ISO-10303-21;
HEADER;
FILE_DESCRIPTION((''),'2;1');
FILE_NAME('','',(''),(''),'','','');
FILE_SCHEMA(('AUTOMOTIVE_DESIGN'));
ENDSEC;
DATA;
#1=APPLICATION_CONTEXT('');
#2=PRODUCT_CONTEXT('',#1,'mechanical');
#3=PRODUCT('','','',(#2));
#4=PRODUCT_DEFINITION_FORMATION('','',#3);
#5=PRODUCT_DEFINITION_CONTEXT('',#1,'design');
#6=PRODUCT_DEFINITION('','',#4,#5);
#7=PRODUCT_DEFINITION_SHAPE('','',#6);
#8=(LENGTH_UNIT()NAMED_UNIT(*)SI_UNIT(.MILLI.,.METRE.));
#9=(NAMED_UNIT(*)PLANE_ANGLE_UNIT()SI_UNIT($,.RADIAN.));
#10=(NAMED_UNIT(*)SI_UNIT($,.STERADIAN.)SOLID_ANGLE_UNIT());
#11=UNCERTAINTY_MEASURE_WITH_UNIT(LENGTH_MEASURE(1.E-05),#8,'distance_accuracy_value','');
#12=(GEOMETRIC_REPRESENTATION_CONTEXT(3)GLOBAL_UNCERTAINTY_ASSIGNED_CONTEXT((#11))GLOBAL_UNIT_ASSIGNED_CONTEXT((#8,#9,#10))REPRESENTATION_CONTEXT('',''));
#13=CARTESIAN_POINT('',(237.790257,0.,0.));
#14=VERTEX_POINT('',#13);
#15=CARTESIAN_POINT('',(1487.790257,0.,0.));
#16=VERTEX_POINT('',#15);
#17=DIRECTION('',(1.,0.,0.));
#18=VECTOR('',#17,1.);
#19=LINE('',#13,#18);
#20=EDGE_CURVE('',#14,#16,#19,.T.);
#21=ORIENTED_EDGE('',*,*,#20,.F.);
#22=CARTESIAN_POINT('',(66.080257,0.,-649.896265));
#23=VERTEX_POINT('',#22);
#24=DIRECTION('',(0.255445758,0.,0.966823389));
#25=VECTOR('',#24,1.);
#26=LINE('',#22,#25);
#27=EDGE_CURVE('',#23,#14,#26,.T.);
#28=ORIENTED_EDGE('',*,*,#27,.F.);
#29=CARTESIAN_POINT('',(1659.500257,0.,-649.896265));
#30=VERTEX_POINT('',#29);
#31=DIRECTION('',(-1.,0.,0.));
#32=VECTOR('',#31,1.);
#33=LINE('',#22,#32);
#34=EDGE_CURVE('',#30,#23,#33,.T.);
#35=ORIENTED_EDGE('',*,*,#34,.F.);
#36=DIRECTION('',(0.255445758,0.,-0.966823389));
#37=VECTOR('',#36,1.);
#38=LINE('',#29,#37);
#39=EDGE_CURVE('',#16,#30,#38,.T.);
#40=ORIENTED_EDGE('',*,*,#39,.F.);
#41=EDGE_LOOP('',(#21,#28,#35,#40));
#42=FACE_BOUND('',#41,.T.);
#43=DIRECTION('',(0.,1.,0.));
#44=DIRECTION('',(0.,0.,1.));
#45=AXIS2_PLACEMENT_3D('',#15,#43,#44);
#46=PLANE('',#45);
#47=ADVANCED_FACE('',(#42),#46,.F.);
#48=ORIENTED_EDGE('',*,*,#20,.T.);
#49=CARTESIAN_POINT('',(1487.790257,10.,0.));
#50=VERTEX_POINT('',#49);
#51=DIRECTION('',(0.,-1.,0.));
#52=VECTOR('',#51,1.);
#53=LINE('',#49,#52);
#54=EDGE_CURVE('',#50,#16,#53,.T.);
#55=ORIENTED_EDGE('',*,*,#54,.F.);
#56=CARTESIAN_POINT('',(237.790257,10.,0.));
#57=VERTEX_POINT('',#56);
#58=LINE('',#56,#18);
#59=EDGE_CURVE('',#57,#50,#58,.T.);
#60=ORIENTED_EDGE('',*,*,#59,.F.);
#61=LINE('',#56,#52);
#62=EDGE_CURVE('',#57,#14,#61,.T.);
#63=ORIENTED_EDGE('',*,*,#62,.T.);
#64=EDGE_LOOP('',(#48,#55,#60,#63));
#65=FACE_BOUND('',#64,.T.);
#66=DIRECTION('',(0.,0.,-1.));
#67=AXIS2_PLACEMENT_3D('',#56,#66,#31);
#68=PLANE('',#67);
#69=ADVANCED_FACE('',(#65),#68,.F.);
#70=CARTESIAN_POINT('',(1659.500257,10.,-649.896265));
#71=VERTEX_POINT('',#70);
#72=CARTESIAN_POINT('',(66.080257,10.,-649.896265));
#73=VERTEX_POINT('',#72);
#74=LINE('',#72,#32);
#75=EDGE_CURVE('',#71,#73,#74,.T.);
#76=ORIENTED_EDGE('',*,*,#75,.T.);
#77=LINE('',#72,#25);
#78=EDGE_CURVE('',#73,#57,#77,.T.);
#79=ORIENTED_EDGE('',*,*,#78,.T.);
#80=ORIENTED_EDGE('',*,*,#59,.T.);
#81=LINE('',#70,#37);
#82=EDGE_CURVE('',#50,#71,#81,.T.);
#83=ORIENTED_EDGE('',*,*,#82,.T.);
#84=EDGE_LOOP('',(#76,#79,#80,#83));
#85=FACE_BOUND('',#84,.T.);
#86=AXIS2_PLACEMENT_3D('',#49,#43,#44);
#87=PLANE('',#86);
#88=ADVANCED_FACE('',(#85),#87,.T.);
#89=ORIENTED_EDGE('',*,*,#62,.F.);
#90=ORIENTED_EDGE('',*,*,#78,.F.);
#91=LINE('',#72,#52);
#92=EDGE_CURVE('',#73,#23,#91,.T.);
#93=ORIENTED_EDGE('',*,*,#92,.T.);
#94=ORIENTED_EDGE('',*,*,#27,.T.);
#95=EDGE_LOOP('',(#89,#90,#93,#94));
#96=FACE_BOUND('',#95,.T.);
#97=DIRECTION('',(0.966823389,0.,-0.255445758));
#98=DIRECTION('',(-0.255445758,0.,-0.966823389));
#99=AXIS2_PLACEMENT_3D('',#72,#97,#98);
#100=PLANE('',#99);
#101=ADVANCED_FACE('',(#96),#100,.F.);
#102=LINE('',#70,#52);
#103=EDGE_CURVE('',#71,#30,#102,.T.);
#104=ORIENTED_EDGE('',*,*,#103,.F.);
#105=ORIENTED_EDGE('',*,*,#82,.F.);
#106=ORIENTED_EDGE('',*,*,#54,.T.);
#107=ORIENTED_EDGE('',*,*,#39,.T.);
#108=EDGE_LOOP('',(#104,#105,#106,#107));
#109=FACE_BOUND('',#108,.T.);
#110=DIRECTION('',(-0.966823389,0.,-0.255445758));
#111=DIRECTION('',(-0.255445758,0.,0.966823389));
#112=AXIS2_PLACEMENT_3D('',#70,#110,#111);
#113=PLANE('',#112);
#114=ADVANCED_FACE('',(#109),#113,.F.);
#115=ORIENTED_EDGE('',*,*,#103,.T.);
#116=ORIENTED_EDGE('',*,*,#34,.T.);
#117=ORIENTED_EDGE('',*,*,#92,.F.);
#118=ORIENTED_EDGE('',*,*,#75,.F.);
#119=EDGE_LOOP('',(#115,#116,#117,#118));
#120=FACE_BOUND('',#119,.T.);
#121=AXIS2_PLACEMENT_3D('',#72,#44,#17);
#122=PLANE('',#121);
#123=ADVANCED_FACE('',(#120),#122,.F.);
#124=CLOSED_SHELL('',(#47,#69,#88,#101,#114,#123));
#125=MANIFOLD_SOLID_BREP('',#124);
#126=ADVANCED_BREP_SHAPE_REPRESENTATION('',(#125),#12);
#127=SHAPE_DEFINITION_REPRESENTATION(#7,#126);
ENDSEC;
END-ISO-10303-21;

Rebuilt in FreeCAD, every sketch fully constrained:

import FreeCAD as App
import Part
import Sketcher

V = App.Vector
Q = App.Units.Quantity


def add_polygon(sketch, points):
    """Adds a closed chain of lines whose ends are joined by coincident constraints."""
    first, n = sketch.GeometryCount, len(points)
    for a, b in zip(points, points[1:] + points[:1]):
        sketch.addGeometry(Part.LineSegment(App.Vector(*a, 0), App.Vector(*b, 0)), False)
    for i in range(n):
        sketch.addConstraint(Sketcher.Constraint("Coincident", first + i, 2, first + (i + 1) % n, 1))

doc = App.newDocument("Part")
params = doc.addObject("Spreadsheet::Sheet", "Params")
for row, (alias, value) in enumerate([
    ("sketch1_width", "1250 mm"),
    ("sketch1_width2", "1593.42 mm"),
    ("pad1_length", "10 mm"),
], start=1):
    params.set(f"A{row}", alias)
    params.set(f"B{row}", "=" + value)
    params.setAlias(f"B{row}", alias)

body = doc.addObject("PartDesign::Body", "Body")

# Sketch on XZ plane
sketch1 = body.newObject("Sketcher::SketchObject", "Sketch")
sketch1.AttachmentSupport = (doc.getObject("XZ_Plane"), [""])
sketch1.MapMode = "FlatFace"
add_polygon(sketch1, [(66.080257, -649.896265), (237.790257, 0), (1487.790257, 0), (1659.500257, -649.896265)])  # lines 0-3
sketch1.addConstraint([
    Sketcher.Constraint("Horizontal", 1),
    Sketcher.Constraint("Horizontal", 3),
    Sketcher.Constraint("PointOnObject", 0, 2, -1),
    Sketcher.Constraint("Equal", 0, 2),
    Sketcher.Constraint("DistanceX", 1, 1, 1, 2, 1250.0),
    Sketcher.Constraint("Angle", 0, Q("75.2 deg")),
    Sketcher.Constraint("DistanceX", 3, 2, 3, 1, 1593.42),
    Sketcher.Constraint("DistanceX", -1, 1, 0, 2, 237.790257),
])
sketch1.setExpression("Constraints[8]", "Params.sketch1_width")
sketch1.setExpression("Constraints[10]", "Params.sketch1_width2")
pad1 = body.newObject("PartDesign::Pad", "Pad")
pad1.Profile = sketch1
pad1.setExpression("Length", "Params.pad1_length")
pad1.Reversed = True

doc.recompute()
